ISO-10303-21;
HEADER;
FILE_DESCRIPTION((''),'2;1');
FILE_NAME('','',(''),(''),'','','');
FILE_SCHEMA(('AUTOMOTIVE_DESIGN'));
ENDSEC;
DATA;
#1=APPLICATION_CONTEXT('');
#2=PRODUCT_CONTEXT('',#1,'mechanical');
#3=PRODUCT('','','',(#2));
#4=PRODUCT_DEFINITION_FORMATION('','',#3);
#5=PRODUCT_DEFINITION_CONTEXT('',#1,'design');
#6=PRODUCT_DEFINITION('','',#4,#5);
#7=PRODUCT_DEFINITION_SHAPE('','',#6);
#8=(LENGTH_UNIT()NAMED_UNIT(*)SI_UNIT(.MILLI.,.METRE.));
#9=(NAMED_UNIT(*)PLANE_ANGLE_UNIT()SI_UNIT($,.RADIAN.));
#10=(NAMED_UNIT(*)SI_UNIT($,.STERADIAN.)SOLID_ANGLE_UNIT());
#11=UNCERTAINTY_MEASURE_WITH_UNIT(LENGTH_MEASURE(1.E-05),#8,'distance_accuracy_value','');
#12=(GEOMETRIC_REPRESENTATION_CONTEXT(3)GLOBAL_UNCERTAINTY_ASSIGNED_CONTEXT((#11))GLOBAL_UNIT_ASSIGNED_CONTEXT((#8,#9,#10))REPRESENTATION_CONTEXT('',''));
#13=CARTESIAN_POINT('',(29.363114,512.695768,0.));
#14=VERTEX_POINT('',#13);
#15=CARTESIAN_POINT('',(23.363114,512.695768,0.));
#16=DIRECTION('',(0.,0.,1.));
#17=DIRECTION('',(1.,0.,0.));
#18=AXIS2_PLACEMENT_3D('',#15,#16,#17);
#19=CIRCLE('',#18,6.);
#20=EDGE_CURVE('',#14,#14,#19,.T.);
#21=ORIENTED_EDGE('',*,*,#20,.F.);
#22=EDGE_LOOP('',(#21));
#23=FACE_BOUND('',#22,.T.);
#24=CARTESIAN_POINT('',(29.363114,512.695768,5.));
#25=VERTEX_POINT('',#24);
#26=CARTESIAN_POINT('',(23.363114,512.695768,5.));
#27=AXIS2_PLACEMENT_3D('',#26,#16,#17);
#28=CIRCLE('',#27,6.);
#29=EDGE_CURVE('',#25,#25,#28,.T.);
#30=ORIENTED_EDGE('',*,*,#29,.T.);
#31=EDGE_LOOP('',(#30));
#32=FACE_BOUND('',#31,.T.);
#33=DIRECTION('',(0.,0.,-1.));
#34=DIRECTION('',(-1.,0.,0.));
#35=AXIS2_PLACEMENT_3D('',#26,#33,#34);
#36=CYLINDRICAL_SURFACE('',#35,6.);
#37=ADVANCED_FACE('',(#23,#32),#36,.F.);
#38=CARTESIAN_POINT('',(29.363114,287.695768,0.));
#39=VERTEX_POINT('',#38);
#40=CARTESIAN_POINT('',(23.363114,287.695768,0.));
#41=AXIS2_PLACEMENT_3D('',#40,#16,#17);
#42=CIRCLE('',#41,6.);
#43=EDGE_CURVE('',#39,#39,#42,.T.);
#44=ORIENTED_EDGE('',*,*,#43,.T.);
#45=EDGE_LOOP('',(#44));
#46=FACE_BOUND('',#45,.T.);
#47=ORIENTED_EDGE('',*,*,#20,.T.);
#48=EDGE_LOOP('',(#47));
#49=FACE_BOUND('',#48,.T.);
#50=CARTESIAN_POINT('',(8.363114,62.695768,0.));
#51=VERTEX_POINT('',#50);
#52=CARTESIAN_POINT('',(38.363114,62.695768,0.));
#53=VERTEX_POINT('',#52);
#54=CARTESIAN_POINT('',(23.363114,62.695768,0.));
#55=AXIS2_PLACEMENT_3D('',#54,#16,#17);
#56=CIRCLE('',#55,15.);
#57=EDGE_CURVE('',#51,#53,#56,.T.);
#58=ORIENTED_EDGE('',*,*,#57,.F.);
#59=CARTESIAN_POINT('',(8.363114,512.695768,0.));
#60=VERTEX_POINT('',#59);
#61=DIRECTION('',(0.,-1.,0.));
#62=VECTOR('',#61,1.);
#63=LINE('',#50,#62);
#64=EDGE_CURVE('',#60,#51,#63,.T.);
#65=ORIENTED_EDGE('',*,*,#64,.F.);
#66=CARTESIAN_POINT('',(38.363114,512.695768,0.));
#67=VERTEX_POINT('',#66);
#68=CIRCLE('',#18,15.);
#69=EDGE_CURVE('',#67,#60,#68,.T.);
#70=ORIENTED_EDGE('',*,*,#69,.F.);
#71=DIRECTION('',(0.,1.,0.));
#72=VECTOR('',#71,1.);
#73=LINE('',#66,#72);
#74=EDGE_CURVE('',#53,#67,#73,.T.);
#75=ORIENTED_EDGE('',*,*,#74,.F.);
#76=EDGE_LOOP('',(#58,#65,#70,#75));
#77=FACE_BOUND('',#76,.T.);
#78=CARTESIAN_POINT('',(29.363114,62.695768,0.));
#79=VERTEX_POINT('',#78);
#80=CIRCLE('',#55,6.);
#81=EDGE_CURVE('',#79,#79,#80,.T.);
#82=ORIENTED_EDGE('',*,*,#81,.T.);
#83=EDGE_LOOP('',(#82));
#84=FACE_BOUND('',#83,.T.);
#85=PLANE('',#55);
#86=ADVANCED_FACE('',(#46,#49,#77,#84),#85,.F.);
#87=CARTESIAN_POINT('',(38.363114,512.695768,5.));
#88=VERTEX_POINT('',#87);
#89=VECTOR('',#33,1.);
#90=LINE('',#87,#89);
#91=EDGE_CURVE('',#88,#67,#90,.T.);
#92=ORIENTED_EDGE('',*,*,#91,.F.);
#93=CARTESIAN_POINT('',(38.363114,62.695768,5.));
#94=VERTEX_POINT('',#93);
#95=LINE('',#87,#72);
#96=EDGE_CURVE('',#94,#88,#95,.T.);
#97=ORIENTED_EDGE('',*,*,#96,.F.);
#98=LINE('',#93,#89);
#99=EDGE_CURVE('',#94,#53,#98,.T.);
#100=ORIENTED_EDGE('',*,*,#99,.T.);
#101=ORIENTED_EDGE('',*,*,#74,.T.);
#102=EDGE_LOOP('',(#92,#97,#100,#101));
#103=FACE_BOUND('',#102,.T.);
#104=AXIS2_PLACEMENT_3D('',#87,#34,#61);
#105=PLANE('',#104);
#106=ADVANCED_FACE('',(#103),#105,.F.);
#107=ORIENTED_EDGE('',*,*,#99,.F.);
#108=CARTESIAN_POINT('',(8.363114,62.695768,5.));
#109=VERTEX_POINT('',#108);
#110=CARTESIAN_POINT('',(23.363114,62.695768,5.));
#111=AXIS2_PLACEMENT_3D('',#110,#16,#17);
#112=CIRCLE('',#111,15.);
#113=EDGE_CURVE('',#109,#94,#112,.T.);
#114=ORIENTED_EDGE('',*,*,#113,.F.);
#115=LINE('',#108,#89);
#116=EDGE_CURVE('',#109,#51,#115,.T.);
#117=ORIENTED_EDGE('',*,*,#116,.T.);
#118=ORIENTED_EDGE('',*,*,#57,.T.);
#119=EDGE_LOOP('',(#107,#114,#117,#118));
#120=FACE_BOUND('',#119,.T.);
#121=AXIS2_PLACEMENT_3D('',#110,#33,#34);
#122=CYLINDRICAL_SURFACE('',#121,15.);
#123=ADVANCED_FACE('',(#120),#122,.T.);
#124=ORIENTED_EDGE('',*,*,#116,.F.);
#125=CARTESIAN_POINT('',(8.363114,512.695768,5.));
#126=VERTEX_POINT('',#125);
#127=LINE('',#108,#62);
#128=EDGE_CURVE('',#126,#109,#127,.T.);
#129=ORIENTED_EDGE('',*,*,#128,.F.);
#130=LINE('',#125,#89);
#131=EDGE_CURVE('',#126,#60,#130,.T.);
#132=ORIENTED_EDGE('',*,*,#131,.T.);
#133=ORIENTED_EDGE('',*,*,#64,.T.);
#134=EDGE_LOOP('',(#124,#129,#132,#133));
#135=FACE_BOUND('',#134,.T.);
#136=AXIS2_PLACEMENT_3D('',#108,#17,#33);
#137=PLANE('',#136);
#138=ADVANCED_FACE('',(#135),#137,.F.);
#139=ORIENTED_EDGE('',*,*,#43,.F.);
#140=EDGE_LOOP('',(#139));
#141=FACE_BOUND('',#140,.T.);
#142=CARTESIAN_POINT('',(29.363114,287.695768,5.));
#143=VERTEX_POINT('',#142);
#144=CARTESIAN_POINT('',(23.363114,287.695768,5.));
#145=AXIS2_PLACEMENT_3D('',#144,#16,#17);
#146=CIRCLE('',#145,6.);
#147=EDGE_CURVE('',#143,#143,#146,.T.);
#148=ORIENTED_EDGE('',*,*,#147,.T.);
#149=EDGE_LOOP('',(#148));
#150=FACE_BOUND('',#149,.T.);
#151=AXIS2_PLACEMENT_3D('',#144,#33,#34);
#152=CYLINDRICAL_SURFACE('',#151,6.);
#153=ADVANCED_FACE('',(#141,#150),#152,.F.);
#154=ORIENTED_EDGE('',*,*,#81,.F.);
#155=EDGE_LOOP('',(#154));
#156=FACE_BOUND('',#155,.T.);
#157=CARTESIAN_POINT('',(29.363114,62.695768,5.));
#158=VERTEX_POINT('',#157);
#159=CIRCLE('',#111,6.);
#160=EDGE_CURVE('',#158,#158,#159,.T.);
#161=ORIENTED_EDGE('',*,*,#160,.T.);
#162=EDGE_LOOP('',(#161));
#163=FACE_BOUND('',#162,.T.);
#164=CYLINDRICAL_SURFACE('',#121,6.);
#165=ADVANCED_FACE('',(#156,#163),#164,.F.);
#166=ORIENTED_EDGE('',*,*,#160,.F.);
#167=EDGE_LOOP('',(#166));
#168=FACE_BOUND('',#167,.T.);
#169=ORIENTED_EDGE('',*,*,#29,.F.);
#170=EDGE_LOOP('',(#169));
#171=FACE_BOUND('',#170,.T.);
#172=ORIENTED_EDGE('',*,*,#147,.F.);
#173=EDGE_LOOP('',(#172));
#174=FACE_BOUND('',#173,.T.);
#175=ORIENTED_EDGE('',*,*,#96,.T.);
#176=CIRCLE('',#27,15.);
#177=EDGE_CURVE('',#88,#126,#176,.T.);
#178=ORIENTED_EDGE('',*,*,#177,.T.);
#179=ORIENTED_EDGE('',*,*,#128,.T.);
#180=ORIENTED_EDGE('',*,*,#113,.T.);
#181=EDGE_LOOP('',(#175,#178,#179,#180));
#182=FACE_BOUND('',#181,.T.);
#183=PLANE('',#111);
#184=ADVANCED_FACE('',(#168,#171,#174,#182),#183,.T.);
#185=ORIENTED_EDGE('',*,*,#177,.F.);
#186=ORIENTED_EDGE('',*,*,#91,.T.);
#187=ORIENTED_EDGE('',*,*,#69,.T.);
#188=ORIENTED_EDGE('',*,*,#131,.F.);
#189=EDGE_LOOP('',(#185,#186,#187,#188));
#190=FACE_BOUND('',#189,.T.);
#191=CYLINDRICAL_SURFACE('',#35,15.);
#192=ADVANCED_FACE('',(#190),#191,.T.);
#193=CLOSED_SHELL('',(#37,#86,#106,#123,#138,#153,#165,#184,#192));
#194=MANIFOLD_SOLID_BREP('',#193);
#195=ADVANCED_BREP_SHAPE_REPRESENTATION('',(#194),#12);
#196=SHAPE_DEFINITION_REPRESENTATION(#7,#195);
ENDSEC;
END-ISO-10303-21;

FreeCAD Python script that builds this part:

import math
import FreeCAD as App
import Part
import Sketcher
Q = App.Units.Quantity

doc = App.newDocument("Part")
body = doc.addObject("PartDesign::Body", "Body")

# Sketch on XY plane
sketch1 = body.newObject("Sketcher::SketchObject", "Sketch")
sketch1.AttachmentSupport = (doc.getObject("XY_Plane"), [""])
sketch1.MapMode = "FlatFace"
sketch1.addGeometry([
    Part.LineSegment(App.Vector(8, 513, 0), App.Vector(8, 63, 0)),  # 0
    Part.ArcOfCircle(Part.Circle(App.Vector(23, 63, 0), App.Vector(0, 0, 1), 15), math.radians(180), math.radians(360)),  # 1
    Part.LineSegment(App.Vector(38, 63, 0), App.Vector(38, 513, 0)),  # 2
    Part.ArcOfCircle(Part.Circle(App.Vector(23, 513, 0), App.Vector(0, 0, 1), 15), math.radians(0), math.radians(180)),  # 3
    Part.Circle(App.Vector(23, 63, 0), App.Vector(0, 0, 1), 6),  # 4
    Part.Circle(App.Vector(23, 288, 0), App.Vector(0, 0, 1), 6),  # 5
    Part.Circle(App.Vector(23, 513, 0), App.Vector(0, 0, 1), 6),  # 6
], False)
sketch1.addConstraint([
    Sketcher.Constraint("Tangent", 0, 2, 1, 1),
    Sketcher.Constraint("Tangent", 1, 2, 2, 1),
    Sketcher.Constraint("Tangent", 2, 2, 3, 1),
    Sketcher.Constraint("Tangent", 3, 2, 0, 1),
    Sketcher.Constraint("Vertical", 0),
    Sketcher.Constraint("Vertical", 2),
    Sketcher.Constraint("Coincident", 4, 3, 1, 3),
    Sketcher.Constraint("Coincident", 6, 3, 3, 3),
    Sketcher.Constraint("Equal", 4, 5),
    Sketcher.Constraint("Equal", 5, 6),
    Sketcher.Constraint("Vertical", 4, 3, 5, 3),
    Sketcher.Constraint("Diameter", 4, Q("12 mm")),
    Sketcher.Constraint("Radius", 1, Q("15 mm")),
    Sketcher.Constraint("DistanceY", 0, 2, 0, 1, Q("450 mm")),
    Sketcher.Constraint("DistanceY", 5, 3, 3, 3, Q("225 mm")),
    Sketcher.Constraint("DistanceY", -1, 1, 1, 3, Q("62.695768 mm")),
    Sketcher.Constraint("DistanceX", -1, 1, 1, 3, Q("23.363114 mm")),
])
pad1 = body.newObject("PartDesign::Pad", "Pad")
pad1.Profile = sketch1
pad1.Length = 5

doc.recompute()
